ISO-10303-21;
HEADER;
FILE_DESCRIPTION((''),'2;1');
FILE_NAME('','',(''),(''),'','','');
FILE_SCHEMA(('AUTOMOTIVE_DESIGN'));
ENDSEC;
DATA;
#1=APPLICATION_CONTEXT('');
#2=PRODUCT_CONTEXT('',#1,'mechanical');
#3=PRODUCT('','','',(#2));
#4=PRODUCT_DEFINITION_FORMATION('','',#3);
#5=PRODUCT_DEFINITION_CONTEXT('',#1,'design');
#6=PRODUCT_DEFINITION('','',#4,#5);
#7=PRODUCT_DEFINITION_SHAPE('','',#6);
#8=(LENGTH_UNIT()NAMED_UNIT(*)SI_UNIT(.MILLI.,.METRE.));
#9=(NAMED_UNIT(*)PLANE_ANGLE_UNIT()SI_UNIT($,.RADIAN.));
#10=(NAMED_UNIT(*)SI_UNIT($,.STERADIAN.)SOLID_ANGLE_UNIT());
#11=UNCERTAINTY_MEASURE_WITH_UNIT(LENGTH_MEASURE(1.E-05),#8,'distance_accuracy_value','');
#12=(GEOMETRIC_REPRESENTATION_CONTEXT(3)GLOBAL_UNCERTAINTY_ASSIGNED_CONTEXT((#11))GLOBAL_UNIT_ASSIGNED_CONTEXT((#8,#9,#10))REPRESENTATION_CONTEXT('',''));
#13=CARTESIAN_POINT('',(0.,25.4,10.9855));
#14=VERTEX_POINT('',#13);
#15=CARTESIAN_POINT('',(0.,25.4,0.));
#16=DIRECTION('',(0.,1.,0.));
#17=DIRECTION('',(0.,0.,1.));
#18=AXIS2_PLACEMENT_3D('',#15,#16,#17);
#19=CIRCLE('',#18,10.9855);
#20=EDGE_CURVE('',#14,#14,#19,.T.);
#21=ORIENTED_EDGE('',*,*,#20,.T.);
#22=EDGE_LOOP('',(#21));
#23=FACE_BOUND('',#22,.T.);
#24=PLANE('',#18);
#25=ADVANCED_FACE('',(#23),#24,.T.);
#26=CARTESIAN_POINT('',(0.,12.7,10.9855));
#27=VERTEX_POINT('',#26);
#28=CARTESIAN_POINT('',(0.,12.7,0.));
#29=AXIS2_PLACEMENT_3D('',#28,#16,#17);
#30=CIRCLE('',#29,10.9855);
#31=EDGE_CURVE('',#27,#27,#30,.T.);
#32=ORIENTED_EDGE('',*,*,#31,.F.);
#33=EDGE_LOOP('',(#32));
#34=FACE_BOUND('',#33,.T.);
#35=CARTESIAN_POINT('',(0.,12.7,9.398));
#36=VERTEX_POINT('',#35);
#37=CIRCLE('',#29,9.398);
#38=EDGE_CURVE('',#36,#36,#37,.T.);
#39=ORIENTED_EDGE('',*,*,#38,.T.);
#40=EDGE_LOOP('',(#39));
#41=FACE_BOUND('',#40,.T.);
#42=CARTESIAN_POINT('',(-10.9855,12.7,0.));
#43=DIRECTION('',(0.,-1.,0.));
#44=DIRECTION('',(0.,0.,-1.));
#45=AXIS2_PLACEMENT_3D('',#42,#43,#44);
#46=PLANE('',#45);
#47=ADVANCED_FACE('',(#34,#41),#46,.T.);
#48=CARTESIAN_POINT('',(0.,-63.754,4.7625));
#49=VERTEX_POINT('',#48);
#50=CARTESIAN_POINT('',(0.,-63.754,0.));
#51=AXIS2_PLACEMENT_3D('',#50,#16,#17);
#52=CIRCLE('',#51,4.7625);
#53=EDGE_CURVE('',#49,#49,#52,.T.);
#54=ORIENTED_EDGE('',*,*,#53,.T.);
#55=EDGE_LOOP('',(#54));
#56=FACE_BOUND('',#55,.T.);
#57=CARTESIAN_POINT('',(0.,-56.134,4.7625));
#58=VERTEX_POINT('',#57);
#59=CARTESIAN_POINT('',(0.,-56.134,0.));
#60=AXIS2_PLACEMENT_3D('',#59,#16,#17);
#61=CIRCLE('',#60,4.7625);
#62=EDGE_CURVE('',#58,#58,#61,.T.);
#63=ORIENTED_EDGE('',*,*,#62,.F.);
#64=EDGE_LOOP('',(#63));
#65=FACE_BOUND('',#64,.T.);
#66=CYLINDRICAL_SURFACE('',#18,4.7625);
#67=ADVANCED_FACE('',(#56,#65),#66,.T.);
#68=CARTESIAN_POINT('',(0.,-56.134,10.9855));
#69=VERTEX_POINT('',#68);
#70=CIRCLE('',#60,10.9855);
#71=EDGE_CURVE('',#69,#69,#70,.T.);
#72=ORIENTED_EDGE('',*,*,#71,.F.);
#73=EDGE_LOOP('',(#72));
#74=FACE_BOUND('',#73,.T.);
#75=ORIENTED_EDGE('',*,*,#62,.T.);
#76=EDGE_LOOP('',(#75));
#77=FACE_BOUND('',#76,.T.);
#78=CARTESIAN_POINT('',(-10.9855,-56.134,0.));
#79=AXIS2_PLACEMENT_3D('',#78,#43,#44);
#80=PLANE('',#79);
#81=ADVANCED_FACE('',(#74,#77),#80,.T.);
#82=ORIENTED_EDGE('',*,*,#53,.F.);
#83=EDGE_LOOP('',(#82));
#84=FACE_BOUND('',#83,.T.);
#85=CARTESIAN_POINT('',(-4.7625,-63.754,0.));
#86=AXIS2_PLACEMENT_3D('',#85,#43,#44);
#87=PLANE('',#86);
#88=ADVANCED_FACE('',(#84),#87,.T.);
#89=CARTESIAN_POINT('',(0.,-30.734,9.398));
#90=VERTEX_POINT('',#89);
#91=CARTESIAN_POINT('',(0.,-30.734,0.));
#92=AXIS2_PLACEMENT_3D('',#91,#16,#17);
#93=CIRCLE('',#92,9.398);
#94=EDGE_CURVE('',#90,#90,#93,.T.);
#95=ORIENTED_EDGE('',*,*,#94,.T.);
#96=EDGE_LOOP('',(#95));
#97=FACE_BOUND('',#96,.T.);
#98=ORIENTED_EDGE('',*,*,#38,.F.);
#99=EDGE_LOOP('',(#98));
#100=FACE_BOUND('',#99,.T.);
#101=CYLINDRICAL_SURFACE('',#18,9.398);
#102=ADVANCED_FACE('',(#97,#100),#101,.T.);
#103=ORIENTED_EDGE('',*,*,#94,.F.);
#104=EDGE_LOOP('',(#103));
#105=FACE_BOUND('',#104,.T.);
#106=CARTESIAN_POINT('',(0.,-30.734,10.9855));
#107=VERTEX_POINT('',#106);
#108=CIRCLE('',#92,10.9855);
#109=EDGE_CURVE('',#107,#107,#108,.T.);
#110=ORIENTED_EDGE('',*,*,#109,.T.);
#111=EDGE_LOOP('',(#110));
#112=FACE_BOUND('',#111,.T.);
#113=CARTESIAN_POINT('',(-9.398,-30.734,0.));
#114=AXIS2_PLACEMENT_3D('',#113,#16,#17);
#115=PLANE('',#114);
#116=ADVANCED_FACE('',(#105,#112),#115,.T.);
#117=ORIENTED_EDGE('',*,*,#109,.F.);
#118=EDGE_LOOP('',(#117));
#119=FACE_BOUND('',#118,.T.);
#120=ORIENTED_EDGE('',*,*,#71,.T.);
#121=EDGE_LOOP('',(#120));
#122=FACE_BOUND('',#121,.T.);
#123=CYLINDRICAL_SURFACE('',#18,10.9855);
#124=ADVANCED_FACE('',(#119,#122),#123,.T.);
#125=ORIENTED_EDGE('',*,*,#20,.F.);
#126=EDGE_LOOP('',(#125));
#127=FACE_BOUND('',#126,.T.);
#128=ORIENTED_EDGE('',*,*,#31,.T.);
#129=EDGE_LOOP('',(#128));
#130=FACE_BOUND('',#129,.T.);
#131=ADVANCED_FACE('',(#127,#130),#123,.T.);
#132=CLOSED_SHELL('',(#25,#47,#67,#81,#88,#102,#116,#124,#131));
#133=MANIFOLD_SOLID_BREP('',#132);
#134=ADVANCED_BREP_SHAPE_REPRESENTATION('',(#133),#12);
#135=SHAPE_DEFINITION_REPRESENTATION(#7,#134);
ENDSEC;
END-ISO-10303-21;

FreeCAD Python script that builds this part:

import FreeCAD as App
import Part
import Sketcher
Q = App.Units.Quantity


def add_polygon(sketch, points):
    """Adds a closed chain of lines whose ends are joined by coincident constraints."""
    first, n = sketch.GeometryCount, len(points)
    for a, b in zip(points, points[1:] + points[:1]):
        sketch.addGeometry(Part.LineSegment(App.Vector(*a, 0), App.Vector(*b, 0)), False)
    for i in range(n):
        sketch.addConstraint(Sketcher.Constraint("Coincident", first + i, 2, first + (i + 1) % n, 1))

doc = App.newDocument("Part")
body = doc.addObject("PartDesign::Body", "Body")

sketch1 = body.newObject("Sketcher::SketchObject", "Sketch")
sketch1.AttachmentSupport = (doc.getObject("XY_Plane"), [""])
sketch1.MapMode = "FlatFace"
add_polygon(sketch1, [(0, 25.4), (-11, 25.4), (-11, 12.7), (-9.4, 12.7), (-9.4, -30.7), (-11, -30.7), (-11, -56.1), (-4.8, -56.1), (-4.8, -63.8), (0, -63.8)])
sketch1.addConstraint([
    Sketcher.Constraint("Horizontal", 0),
    Sketcher.Constraint("Vertical", 1),
    Sketcher.Constraint("Horizontal", 2),
    Sketcher.Constraint("Vertical", 3),
    Sketcher.Constraint("Horizontal", 4),
    Sketcher.Constraint("Vertical", 5),
    Sketcher.Constraint("Horizontal", 6),
    Sketcher.Constraint("Vertical", 7),
    Sketcher.Constraint("Horizontal", 8),
    Sketcher.Constraint("Vertical", 9),
    Sketcher.Constraint("PointOnObject", 8, 2, -2),
    Sketcher.Constraint("Vertical", 1, 2, 4, 2),
    Sketcher.Constraint("DistanceY", 5, 2, 5, 1, Q("1 in")),
    Sketcher.Constraint("DistanceY", 1, 2, 1, 1, Q("0.5 in")),
    Sketcher.Constraint("DistanceY", 7, 2, 7, 1, Q("0.3 in")),
    Sketcher.Constraint("DistanceY", -1, 1, 0, 2, Q("1 in")),
    Sketcher.Constraint("DistanceY", 3, 2, 3, 1, Q("1.71 in")),
    Sketcher.Constraint("DistanceX", 2, 1, 2, 2, Q("0.0625 in")),
    Sketcher.Constraint("DistanceX", 6, 1, 6, 2, Q("0.245 in")),
    Sketcher.Constraint("DistanceX", 8, 1, 8, 2, Q("0.1875 in")),
])
revolution = body.newObject("PartDesign::Revolution", "Revolution")
revolution.Profile = sketch1
revolution.ReferenceAxis = (sketch1, ["V_Axis"])
revolution.Angle = 360

doc.recompute()
